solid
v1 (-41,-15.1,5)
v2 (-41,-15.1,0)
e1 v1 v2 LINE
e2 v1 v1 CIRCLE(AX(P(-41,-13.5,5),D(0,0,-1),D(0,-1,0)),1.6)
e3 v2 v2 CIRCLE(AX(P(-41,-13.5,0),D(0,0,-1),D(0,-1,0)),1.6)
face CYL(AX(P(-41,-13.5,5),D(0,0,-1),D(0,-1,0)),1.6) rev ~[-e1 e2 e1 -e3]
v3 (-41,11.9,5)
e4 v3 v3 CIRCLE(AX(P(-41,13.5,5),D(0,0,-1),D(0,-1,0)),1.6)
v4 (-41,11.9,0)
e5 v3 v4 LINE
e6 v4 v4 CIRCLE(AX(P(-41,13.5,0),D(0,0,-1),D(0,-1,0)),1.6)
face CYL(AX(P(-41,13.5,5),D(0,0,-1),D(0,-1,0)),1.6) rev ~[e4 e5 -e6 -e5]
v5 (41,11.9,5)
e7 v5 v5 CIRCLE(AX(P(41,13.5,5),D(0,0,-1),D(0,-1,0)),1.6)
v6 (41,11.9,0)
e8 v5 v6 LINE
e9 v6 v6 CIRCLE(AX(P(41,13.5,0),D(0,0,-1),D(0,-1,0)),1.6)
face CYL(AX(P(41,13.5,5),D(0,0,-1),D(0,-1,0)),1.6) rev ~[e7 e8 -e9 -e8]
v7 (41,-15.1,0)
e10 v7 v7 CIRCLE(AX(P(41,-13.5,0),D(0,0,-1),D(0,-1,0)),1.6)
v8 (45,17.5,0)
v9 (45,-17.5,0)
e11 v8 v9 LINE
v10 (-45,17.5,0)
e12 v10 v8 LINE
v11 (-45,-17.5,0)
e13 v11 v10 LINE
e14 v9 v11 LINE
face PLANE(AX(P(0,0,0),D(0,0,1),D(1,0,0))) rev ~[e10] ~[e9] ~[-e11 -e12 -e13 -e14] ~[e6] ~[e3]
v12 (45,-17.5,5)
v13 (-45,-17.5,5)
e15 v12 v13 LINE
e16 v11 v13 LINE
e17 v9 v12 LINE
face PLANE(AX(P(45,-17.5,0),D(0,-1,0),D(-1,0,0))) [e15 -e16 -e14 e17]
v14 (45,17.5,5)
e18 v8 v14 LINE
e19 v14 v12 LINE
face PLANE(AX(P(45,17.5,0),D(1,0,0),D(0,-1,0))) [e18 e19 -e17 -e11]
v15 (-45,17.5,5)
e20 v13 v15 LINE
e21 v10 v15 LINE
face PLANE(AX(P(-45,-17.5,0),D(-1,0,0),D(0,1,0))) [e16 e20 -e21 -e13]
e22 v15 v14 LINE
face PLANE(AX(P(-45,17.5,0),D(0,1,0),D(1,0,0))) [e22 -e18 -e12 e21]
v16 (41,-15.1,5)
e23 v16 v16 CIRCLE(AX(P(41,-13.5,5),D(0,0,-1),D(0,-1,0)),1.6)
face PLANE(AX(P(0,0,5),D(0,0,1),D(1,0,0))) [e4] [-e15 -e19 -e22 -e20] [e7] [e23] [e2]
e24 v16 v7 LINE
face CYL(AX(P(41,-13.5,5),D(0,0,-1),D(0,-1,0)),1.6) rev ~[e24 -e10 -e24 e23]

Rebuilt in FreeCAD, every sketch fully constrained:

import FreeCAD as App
import Part
import Sketcher
from FreeCAD import Vector


def add_polygon(sketch, points):
    """Adds a closed chain of lines whose ends are joined by coincident constraints."""
    first, n = sketch.GeometryCount, len(points)
    for a, b in zip(points, points[1:] + points[:1]):
        sketch.addGeometry(Part.LineSegment(App.Vector(*a, 0), App.Vector(*b, 0)), False)
    for i in range(n):
        sketch.addConstraint(Sketcher.Constraint("Coincident", first + i, 2, first + (i + 1) % n, 1))

doc = App.newDocument("Part")
body = doc.addObject("PartDesign::Body", "Body")

# Sketch on XY plane
sketch1 = body.newObject("Sketcher::SketchObject", "Sketch")
sketch1.AttachmentSupport = (doc.getObject("XY_Plane"), [""])
sketch1.MapMode = "FlatFace"
add_polygon(sketch1, [(45, 18), (-45, 18), (-45, -18), (45, -18)])  # lines 0-3
sketch1.addConstraint(Sketcher.Constraint("Horizontal", 0))
sketch1.addConstraint(Sketcher.Constraint("Vertical", 1))
sketch1.addConstraint(Sketcher.Constraint("Horizontal", 2))
sketch1.addConstraint(Sketcher.Constraint("Vertical", 3))
sketch1.addConstraint(Sketcher.Constraint("Symmetric", 0, 2, 2, 2, -1, 1))
sketch1.addConstraint(Sketcher.Constraint("DistanceX", 0, 2, 0, 1, 90.0))
sketch1.addConstraint(Sketcher.Constraint("DistanceY", 1, 2, 1, 1, 35.0))
pad1 = body.newObject("PartDesign::Pad", "Pad")
pad1.Profile = sketch1
pad1.Length = 5

# Sketch on XY plane
sketch2 = body.newObject("Sketcher::SketchObject", "Sketch001")
sketch2.AttachmentSupport = (doc.getObject("XY_Plane"), [""])
sketch2.MapMode = "FlatFace"
sketch2.AttachmentOffset = App.Placement(Vector(0, 0, 5), App.Rotation())
sketch2.addGeometry(Part.Circle(Vector(-41, 13.5, 0), Vector(0, 0, 1), 1.6), False)
sketch2.addGeometry(Part.Circle(Vector(-41, -13.5, 0), Vector(0, 0, 1), 1.6), False)
sketch2.addGeometry(Part.Circle(Vector(41, 13.5, 0), Vector(0, 0, 1), 1.6), False)
sketch2.addGeometry(Part.Circle(Vector(41, -13.5, 0), Vector(0, 0, 1), 1.6), False)
sketch2.addConstraint(Sketcher.Constraint("Equal", 0, 1))
sketch2.addConstraint(Sketcher.Constraint("Equal", 1, 2))
sketch2.addConstraint(Sketcher.Constraint("Equal", 2, 3))
sketch2.addConstraint(Sketcher.Constraint("Symmetric", 1, 3, 2, 3, -1, 1))
sketch2.addConstraint(Sketcher.Constraint("Symmetric", 0, 3, 3, 3, -1, 1))
sketch2.addConstraint(Sketcher.Constraint("Symmetric", 0, 3, 2, 3, -2))
sketch2.addConstraint(Sketcher.Constraint("Diameter", 0, 3.2))
sketch2.addConstraint(Sketcher.Constraint("DistanceX", 0, 3, -1, 1, 41.0))
sketch2.addConstraint(Sketcher.Constraint("DistanceY", 1, 3, 0, 3, 27.0))
doc.recompute()
hole = body.newObject("PartDesign::Hole", "Hole")
hole.Profile = sketch2
hole.ThreadType = "None"
hole.Diameter = 3.2
hole.DepthType = "Dimension"
hole.Depth = 8
hole.DrillPoint = "Angled"
hole.DrillPointAngle = 118

doc.recompute()
